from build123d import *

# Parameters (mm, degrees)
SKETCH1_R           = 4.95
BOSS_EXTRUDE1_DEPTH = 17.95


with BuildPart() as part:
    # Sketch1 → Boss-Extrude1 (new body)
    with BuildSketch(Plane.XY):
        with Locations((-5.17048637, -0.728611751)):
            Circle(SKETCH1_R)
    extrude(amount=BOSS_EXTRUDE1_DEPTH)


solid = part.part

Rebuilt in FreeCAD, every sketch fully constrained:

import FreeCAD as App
import Part
import Sketcher
from FreeCAD import Vector
Q = App.Units.Quantity

doc = App.newDocument("Part")
body = doc.addObject("PartDesign::Body", "Body")

sketch1 = body.newObject("Sketcher::SketchObject", "Sketch")
sketch1.AttachmentSupport = (doc.getObject("XY_Plane"), [""])
sketch1.MapMode = "FlatFace"
sketch1.addGeometry(Part.Circle(Vector(-5.170486, -0.728612, 0), Vector(0, 0, 1), 4.95), False)
sketch1.addConstraint([
    Sketcher.Constraint("Diameter", 0, Q("9.9 mm")),
    Sketcher.Constraint("DistanceY", 0, 3, -1, 1, Q("0.728612 mm")),
    Sketcher.Constraint("DistanceX", 0, 3, -1, 1, Q("5.170486 mm")),
])
pad1 = body.newObject("PartDesign::Pad", "Pad")
pad1.Profile = sketch1
pad1.Length = 17.95

doc.recompute()
